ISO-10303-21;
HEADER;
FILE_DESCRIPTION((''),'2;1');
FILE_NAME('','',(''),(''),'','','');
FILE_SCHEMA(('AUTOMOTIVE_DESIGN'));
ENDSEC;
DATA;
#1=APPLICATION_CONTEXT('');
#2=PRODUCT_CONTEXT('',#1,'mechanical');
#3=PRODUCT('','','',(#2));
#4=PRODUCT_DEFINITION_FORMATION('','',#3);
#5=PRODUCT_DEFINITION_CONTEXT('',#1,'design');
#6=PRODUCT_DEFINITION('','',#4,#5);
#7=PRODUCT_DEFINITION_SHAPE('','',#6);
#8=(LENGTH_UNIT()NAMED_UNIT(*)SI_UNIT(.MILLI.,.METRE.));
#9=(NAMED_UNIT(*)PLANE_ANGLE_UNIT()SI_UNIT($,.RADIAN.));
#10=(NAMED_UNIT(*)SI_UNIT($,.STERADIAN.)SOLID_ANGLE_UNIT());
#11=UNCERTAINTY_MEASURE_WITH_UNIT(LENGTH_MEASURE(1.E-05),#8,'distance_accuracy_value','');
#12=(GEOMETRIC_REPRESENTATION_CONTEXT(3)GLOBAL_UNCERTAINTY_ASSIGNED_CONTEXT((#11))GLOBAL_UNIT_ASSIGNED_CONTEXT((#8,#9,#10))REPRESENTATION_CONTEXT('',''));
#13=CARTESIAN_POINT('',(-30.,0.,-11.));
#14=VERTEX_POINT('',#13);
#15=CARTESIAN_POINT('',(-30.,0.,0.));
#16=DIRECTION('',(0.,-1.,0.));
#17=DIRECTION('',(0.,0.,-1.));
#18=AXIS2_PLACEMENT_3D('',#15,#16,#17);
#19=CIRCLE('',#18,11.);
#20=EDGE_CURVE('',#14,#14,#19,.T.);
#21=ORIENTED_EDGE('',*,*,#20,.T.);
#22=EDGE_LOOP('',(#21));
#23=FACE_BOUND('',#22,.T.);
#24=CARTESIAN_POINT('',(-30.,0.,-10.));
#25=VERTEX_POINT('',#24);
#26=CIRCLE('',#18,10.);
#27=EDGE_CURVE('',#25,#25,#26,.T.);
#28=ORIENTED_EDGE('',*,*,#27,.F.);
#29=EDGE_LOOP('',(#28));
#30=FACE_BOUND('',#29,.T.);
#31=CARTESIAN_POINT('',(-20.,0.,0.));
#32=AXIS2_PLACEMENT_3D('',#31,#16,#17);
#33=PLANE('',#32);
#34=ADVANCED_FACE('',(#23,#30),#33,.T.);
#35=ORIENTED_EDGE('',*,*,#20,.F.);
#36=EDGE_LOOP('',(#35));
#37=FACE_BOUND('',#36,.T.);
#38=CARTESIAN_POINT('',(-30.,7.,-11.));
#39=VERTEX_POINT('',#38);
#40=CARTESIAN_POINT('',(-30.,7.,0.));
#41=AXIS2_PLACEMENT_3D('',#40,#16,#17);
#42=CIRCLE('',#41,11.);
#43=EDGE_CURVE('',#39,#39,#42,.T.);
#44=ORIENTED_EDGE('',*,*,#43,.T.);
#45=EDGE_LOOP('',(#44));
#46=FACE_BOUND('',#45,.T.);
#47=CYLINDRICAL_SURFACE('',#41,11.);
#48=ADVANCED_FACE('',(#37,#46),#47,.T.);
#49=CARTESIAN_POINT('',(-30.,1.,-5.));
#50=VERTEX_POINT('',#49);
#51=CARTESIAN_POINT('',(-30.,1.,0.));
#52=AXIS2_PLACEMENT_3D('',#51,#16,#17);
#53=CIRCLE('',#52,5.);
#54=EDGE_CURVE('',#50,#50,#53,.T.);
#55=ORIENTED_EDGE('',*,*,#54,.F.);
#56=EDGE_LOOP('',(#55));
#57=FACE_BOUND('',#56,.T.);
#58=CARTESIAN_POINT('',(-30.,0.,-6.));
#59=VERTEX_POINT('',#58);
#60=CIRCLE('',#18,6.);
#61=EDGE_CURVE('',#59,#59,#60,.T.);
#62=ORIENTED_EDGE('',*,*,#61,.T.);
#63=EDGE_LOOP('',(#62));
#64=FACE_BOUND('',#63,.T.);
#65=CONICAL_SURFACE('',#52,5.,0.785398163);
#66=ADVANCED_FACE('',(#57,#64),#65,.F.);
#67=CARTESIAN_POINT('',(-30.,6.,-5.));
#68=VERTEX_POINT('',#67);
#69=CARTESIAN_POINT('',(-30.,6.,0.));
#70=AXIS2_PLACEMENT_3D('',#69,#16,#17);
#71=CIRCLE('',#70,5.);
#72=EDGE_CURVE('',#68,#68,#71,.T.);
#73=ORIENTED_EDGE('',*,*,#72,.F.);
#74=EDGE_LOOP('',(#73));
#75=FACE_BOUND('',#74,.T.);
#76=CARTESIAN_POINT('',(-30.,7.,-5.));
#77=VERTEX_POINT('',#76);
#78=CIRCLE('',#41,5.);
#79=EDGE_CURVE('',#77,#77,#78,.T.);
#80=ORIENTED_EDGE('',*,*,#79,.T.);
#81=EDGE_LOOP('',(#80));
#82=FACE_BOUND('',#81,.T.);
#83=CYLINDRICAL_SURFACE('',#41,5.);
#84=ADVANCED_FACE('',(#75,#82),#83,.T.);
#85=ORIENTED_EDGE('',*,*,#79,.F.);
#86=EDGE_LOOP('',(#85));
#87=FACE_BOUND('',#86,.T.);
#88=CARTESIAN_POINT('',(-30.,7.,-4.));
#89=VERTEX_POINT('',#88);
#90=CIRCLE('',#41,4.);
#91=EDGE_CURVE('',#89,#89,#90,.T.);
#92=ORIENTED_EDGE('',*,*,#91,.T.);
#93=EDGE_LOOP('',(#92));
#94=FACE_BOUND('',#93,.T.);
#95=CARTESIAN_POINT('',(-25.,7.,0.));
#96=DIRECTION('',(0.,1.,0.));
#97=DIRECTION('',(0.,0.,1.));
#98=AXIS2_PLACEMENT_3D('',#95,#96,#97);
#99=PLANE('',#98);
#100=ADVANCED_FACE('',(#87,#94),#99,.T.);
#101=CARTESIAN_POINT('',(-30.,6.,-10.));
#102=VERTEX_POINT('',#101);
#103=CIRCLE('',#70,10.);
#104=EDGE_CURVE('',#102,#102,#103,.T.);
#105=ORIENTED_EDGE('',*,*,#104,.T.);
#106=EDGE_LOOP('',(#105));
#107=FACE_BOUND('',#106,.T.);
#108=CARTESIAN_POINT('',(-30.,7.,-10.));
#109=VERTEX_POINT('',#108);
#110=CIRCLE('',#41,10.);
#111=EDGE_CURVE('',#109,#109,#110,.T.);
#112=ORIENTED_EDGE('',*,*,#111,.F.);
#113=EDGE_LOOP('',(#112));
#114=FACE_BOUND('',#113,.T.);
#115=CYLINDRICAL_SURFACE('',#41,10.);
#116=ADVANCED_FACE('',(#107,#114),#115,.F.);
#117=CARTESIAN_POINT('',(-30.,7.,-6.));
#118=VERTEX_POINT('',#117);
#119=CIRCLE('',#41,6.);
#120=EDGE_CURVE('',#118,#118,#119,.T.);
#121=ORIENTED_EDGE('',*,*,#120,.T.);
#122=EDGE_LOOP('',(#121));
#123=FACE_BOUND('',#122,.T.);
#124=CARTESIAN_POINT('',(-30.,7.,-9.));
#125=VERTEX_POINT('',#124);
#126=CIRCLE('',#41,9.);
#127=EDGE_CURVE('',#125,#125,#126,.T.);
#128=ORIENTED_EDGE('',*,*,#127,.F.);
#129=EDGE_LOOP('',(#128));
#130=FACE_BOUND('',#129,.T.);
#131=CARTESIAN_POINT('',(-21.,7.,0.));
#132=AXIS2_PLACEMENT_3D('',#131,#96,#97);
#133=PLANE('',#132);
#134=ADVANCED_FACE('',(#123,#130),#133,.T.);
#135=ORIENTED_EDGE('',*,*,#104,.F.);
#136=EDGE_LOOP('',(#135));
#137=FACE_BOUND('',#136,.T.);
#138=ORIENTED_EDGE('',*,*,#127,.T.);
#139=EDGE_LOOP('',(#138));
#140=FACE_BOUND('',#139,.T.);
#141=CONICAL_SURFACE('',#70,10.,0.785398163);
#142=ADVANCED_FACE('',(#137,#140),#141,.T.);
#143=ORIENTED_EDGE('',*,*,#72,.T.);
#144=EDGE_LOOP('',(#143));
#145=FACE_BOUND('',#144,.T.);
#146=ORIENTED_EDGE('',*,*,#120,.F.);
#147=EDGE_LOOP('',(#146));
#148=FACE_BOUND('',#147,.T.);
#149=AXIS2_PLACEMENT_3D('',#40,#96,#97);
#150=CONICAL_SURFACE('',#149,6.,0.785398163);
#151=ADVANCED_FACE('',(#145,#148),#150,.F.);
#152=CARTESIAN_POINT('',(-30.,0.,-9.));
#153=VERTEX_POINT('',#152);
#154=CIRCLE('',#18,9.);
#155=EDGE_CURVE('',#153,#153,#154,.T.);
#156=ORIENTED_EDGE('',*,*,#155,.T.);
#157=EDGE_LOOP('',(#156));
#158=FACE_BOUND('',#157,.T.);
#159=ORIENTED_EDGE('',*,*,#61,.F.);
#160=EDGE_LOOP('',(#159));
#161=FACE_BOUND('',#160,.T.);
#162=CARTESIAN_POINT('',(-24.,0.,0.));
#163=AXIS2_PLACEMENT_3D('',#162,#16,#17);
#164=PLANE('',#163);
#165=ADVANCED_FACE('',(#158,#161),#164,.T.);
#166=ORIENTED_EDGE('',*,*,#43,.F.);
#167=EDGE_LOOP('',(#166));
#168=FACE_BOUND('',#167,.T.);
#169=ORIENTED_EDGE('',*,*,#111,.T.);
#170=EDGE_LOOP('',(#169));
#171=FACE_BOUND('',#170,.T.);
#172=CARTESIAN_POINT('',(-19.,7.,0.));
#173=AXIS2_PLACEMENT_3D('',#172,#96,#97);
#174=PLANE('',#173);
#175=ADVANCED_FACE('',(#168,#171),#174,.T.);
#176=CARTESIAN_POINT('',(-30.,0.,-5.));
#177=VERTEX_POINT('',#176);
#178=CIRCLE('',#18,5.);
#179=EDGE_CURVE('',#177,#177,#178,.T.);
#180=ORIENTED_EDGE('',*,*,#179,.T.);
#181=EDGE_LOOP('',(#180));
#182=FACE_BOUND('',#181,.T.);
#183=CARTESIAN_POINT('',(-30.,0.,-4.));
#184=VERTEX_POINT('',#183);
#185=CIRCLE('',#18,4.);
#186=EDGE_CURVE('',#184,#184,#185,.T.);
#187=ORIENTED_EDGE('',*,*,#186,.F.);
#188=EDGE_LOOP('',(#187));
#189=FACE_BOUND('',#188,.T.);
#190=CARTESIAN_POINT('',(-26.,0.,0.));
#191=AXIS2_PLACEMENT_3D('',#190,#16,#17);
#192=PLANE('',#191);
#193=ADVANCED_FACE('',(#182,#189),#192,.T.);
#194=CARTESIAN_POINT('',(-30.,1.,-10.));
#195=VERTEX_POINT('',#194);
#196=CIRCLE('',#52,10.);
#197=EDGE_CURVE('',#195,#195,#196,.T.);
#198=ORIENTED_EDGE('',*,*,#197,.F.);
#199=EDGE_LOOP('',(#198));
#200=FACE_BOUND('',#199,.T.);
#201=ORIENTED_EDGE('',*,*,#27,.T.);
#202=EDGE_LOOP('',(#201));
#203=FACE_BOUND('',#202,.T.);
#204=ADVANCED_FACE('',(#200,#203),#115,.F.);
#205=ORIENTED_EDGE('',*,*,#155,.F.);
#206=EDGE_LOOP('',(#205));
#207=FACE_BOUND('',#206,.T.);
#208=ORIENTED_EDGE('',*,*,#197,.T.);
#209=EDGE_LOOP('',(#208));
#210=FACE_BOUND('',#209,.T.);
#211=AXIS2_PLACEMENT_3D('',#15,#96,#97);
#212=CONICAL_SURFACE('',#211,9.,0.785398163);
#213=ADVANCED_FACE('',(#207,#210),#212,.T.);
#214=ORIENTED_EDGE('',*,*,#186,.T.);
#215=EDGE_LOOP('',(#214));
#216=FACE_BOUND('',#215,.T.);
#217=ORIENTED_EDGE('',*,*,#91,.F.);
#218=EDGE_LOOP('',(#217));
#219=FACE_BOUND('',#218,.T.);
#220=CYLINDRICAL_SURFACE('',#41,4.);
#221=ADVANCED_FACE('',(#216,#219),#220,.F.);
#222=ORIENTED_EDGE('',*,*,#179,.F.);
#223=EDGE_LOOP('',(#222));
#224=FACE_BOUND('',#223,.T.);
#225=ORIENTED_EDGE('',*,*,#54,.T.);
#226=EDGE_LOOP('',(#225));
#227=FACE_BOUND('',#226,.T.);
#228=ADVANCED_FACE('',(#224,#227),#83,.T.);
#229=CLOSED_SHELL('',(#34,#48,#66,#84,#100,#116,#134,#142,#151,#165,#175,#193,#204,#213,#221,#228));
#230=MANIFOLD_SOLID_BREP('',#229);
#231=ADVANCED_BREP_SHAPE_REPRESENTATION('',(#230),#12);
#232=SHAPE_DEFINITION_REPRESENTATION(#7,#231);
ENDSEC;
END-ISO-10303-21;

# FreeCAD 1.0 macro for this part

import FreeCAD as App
import Part
import Sketcher
from FreeCAD import Vector

doc = App.newDocument("Part")
body = doc.addObject("PartDesign::Body", "Body")

# Sketch on XY plane
sketch1 = body.newObject("Sketcher::SketchObject", "Sketch")
sketch1.AttachmentSupport = (doc.getObject("XY_Plane"), [""])
sketch1.MapMode = "FlatFace"
sketch1.addGeometry([
    Part.LineSegment(Vector(-20, 0, 0), Vector(-19, 0, 0)),  # 0
    Part.LineSegment(Vector(-19, 0, 0), Vector(-19, 7, 0)),  # 1
    Part.LineSegment(Vector(-19, 7, 0), Vector(-20, 7, 0)),  # 2
    Part.LineSegment(Vector(-20, 7, 0), Vector(-20, 6, 0)),  # 3
    Part.LineSegment(Vector(-20, 6, 0), Vector(-21, 7, 0)),  # 4
    Part.LineSegment(Vector(-21, 7, 0), Vector(-24, 7, 0)),  # 5
    Part.LineSegment(Vector(-24, 7, 0), Vector(-25, 6, 0)),  # 6
    Part.LineSegment(Vector(-25, 6, 0), Vector(-25, 7, 0)),  # 7
    Part.LineSegment(Vector(-25, 7, 0), Vector(-26, 7, 0)),  # 8
    Part.LineSegment(Vector(-26, 7, 0), Vector(-26, 0, 0)),  # 9
    Part.LineSegment(Vector(-26, 0, 0), Vector(-25, 0, 0)),  # 10
    Part.LineSegment(Vector(-25, 0, 0), Vector(-25, 1, 0)),  # 11
    Part.LineSegment(Vector(-25, 1, 0), Vector(-24, 0, 0)),  # 12
    Part.LineSegment(Vector(-24, 0, 0), Vector(-21, 0, 0)),  # 13
    Part.LineSegment(Vector(-21, 0, 0), Vector(-20, 1, 0)),  # 14
    Part.LineSegment(Vector(-20, 1, 0), Vector(-20, 0, 0)),  # 15
], False)
sketch1.addGeometry(Part.LineSegment(Vector(-30, 7, 0), Vector(-30, 0, 0)), True)  # axis
sketch1.addConstraint([
    Sketcher.Constraint("Coincident", 0, 2, 1, 1),
    Sketcher.Constraint("Coincident", 1, 2, 2, 1),
    Sketcher.Constraint("Coincident", 2, 2, 3, 1),
    Sketcher.Constraint("Coincident", 3, 2, 4, 1),
    Sketcher.Constraint("Coincident", 4, 2, 5, 1),
    Sketcher.Constraint("Coincident", 5, 2, 6, 1),
    Sketcher.Constraint("Coincident", 6, 2, 7, 1),
    Sketcher.Constraint("Coincident", 7, 2, 8, 1),
    Sketcher.Constraint("Coincident", 8, 2, 9, 1),
    Sketcher.Constraint("Coincident", 9, 2, 10, 1),
    Sketcher.Constraint("Coincident", 10, 2, 11, 1),
    Sketcher.Constraint("Coincident", 11, 2, 12, 1),
    Sketcher.Constraint("Coincident", 12, 2, 13, 1),
    Sketcher.Constraint("Coincident", 13, 2, 14, 1),
    Sketcher.Constraint("Coincident", 14, 2, 15, 1),
    Sketcher.Constraint("Coincident", 15, 2, 0, 1),
    Sketcher.Constraint("Horizontal", 0),
    Sketcher.Constraint("Vertical", 1),
    Sketcher.Constraint("Horizontal", 2),
    Sketcher.Constraint("Vertical", 3),
    Sketcher.Constraint("Horizontal", 5),
    Sketcher.Constraint("Vertical", 7),
    Sketcher.Constraint("Horizontal", 8),
    Sketcher.Constraint("Vertical", 9),
    Sketcher.Constraint("Horizontal", 10),
    Sketcher.Constraint("Vertical", 11),
    Sketcher.Constraint("Horizontal", 13),
    Sketcher.Constraint("Vertical", 15),
    Sketcher.Constraint("Vertical", 16),
    Sketcher.Constraint("PointOnObject", 0, 2, -1),
    Sketcher.Constraint("PointOnObject", 9, 2, -1),
    Sketcher.Constraint("PointOnObject", 12, 2, -1),
    Sketcher.Constraint("PointOnObject", 16, 2, -1),
    Sketcher.Constraint("Perpendicular", 4, 6),
    Sketcher.Constraint("Perpendicular", 6, 12),
    Sketcher.Constraint("Perpendicular", 12, 14),
    Sketcher.Constraint("Horizontal", 2, 2, 4, 2),
    Sketcher.Constraint("Horizontal", 3, 2, 6, 2),
    Sketcher.Constraint("Horizontal", 5, 2, 7, 2),
    Sketcher.Constraint("Horizontal", 11, 2, 14, 2),
    Sketcher.Constraint("Horizontal", 8, 2, 16, 1),
    Sketcher.Constraint("Vertical", 7, 2, 10, 2),
    Sketcher.Constraint("Vertical", 5, 2, 12, 2),
    Sketcher.Constraint("Vertical", 4, 2, 13, 2),
    Sketcher.Constraint("Vertical", 3, 2, 14, 2),
    Sketcher.Constraint("Equal", 2, 8),
    Sketcher.Constraint("Equal", 10, 3),
    Sketcher.Constraint("DistanceX", 0, 1, 0, 2, 1.0),
    Sketcher.Constraint("DistanceX", 5, 2, 5, 1, 3.0),
    Sketcher.Constraint("DistanceY", 1, 1, 1, 2, 7.0),
    Sketcher.Constraint("DistanceX", 0, 2, -1, 1, 19.0),
    Sketcher.Constraint("DistanceX", 16, 1, -1, 1, 30.0),
])
revolution = body.newObject("PartDesign::Revolution", "Revolution")
revolution.Profile = sketch1
revolution.ReferenceAxis = (sketch1, ["Axis0"])
revolution.Angle = 360

doc.recompute()
